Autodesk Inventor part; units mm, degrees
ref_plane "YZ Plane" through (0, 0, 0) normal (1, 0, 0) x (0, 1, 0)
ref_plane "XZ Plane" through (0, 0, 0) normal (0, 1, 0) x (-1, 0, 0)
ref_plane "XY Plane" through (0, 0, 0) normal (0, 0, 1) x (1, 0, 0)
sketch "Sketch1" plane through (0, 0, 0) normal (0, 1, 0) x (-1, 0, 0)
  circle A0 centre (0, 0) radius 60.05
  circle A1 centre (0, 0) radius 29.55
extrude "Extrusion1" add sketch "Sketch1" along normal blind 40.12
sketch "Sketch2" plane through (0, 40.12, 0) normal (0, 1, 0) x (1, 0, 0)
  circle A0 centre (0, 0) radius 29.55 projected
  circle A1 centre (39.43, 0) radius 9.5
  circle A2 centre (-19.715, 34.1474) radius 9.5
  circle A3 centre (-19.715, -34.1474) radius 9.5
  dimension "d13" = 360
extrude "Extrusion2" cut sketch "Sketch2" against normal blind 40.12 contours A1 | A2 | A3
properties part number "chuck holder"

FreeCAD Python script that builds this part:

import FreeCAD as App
import Part
import Sketcher
from FreeCAD import Vector
Q = App.Units.Quantity

doc = App.newDocument("Part")
body = doc.addObject("PartDesign::Body", "Body")

# Sketch on XZ plane
sketch1 = doc.addObject("Sketcher::SketchObject", "Sketch")
body.addObject(sketch1)
sketch1.AttachmentSupport = (doc.XZ_Plane, [""])
sketch1.MapMode = "FlatFace"
sketch1.addGeometry([
    Part.Circle(Vector(0, 0, 0), Vector(0, 0, 1), 60),
    Part.Circle(Vector(0, 0, 0), Vector(0, 0, 1), 30),
], False)
sketch1.addConstraint([
    Sketcher.Constraint("Coincident", 0, 3, -1, 1),
    Sketcher.Constraint("Coincident", 1, 3, -1, 1),
    Sketcher.Constraint("Diameter", 0, Q("120.1 mm")),
    Sketcher.Constraint("Diameter", 1, Q("59.1 mm")),
])
pad1 = doc.addObject("PartDesign::Pad", "Pad")
body.addObject(pad1)
pad1.Profile = sketch1
pad1.Length = 40.12
pad1.Reversed = True

# Sketch on XZ plane
sketch2 = doc.addObject("Sketcher::SketchObject", "Sketch001")
body.addObject(sketch2)
sketch2.AttachmentSupport = (doc.XZ_Plane, [""])
sketch2.MapMode = "FlatFace"
sketch2.AttachmentOffset = App.Placement(Vector(0, 0, -40.12), App.Rotation())
sketch2.addGeometry([
    Part.Circle(Vector(39, 0, 0), Vector(0, 0, 1), 10),
    Part.Circle(Vector(-20, -34, 0), Vector(0, 0, 1), 10),
    Part.Circle(Vector(-20, 34, 0), Vector(0, 0, 1), 10),
], False)
sketch2.addConstraint([
    Sketcher.Constraint("Equal", 0, 1),
    Sketcher.Constraint("Equal", 1, 2),
    Sketcher.Constraint("Symmetric", 1, 3, 2, 3, -1),
    Sketcher.Constraint("PointOnObject", 0, 3, -1),
    Sketcher.Constraint("Diameter", 0, Q("19 mm")),
    Sketcher.Constraint("DistanceX", -1, 1, 0, 3, Q("39.43 mm")),
    Sketcher.Constraint("DistanceX", 1, 3, -1, 1, Q("19.715 mm")),
    Sketcher.Constraint("DistanceY", 1, 3, -1, 1, Q("34.1474 mm")),
])
pocket1 = doc.addObject("PartDesign::Pocket", "Pocket")
body.addObject(pocket1)
pocket1.Profile = sketch2
pocket1.Length = 40.12
pocket1.Reversed = True

doc.recompute()
